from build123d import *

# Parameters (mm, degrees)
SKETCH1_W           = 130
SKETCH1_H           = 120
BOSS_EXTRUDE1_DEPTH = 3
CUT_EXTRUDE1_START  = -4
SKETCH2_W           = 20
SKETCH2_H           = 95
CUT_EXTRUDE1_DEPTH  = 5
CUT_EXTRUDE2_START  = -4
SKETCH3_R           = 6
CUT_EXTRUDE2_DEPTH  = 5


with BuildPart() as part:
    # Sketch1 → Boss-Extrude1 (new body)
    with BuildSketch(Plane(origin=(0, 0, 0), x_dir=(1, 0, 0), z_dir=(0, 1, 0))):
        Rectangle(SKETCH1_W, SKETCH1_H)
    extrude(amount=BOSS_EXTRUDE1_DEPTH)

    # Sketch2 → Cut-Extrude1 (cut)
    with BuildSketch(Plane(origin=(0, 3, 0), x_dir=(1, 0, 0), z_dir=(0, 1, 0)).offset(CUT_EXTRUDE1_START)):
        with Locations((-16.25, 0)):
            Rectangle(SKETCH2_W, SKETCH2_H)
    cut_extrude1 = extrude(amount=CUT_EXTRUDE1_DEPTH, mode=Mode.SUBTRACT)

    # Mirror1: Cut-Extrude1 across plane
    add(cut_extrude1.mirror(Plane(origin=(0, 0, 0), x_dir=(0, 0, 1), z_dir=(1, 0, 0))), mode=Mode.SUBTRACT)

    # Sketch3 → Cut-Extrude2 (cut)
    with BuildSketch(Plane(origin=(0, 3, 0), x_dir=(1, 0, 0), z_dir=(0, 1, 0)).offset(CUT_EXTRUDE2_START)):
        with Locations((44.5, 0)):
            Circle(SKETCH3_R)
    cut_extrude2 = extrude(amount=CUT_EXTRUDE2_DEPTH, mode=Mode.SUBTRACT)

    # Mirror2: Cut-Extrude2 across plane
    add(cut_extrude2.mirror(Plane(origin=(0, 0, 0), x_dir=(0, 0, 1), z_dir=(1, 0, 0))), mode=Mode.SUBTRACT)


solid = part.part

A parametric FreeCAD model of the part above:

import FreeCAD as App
import Part
import Sketcher
Q = App.Units.Quantity

doc = App.newDocument("Part")
body = doc.addObject("PartDesign::Body", "Body")

sketch1 = body.newObject("Sketcher::SketchObject", "Sketch")
sketch1.AttachmentSupport = (doc.getObject("XZ_Plane"), [""])
sketch1.MapMode = "FlatFace"
sketch1.addGeometry([
    Part.LineSegment(App.Vector(-65, -60, 0), App.Vector(-65, 60, 0)),
    Part.LineSegment(App.Vector(-65, 60, 0), App.Vector(65, 60, 0)),
    Part.LineSegment(App.Vector(65, 60, 0), App.Vector(65, -60, 0)),
    Part.LineSegment(App.Vector(65, -60, 0), App.Vector(-65, -60, 0)),
], False)
sketch1.addConstraint([
    Sketcher.Constraint("Coincident", 0, 2, 1, 1),
    Sketcher.Constraint("Coincident", 1, 2, 2, 1),
    Sketcher.Constraint("Coincident", 2, 2, 3, 1),
    Sketcher.Constraint("Coincident", 3, 2, 0, 1),
    Sketcher.Constraint("Vertical", 0),
    Sketcher.Constraint("Horizontal", 1),
    Sketcher.Constraint("Vertical", 2),
    Sketcher.Constraint("Horizontal", 3),
    Sketcher.Constraint("Symmetric", 0, 2, 2, 2, -1, 1),
    Sketcher.Constraint("DistanceX", 1, 1, 1, 2, Q("130 mm")),
    Sketcher.Constraint("DistanceY", 0, 1, 0, 2, Q("120 mm")),
])
pad1 = body.newObject("PartDesign::Pad", "Pad")
pad1.Profile = sketch1
pad1.Length = 3
pad1.Reversed = True

sketch2 = body.newObject("Sketcher::SketchObject", "Sketch001")
sketch2.AttachmentSupport = (doc.getObject("XZ_Plane"), [""])
sketch2.MapMode = "FlatFace"
sketch2.AttachmentOffset = App.Placement(App.Vector(0, 0, 1), App.Rotation())
sketch2.addGeometry([
    Part.LineSegment(App.Vector(-26, -48, 0), App.Vector(-26, 48, 0)),
    Part.LineSegment(App.Vector(-26, 48, 0), App.Vector(-6, 48, 0)),
    Part.LineSegment(App.Vector(-6, 48, 0), App.Vector(-6, -48, 0)),
    Part.LineSegment(App.Vector(-6, -48, 0), App.Vector(-26, -48, 0)),
], False)
sketch2.addConstraint([
    Sketcher.Constraint("Coincident", 0, 2, 1, 1),
    Sketcher.Constraint("Coincident", 1, 2, 2, 1),
    Sketcher.Constraint("Coincident", 2, 2, 3, 1),
    Sketcher.Constraint("Coincident", 3, 2, 0, 1),
    Sketcher.Constraint("Vertical", 0),
    Sketcher.Constraint("Horizontal", 1),
    Sketcher.Constraint("Vertical", 2),
    Sketcher.Constraint("Horizontal", 3),
    Sketcher.Constraint("DistanceX", 1, 1, 1, 2, Q("20 mm")),
    Sketcher.Constraint("DistanceY", 0, 1, 0, 2, Q("95 mm")),
    Sketcher.Constraint("DistanceY", -1, 1, 0, 2, Q("47.5 mm")),
    Sketcher.Constraint("DistanceX", 0, 2, -1, 1, Q("26.25 mm")),
])
pocket1 = body.newObject("PartDesign::Pocket", "Pocket")
pocket1.Profile = sketch2
pocket1.Length = 5
doc.recompute()

mirrored = body.newObject("PartDesign::Mirrored", "Mirrored")
mirrored.Originals = [pocket1]
mirrored.MirrorPlane = (doc.getObject("YZ_Plane"), [""])
body.Tip = mirrored

sketch3 = body.newObject("Sketcher::SketchObject", "Sketch002")
sketch3.AttachmentSupport = (doc.getObject("XZ_Plane"), [""])
sketch3.MapMode = "FlatFace"
sketch3.AttachmentOffset = App.Placement(App.Vector(0, 0, 1), App.Rotation())
sketch3.addGeometry(Part.Circle(App.Vector(44, 0, 0), App.Vector(0, 0, 1), 6), False)
sketch3.addConstraint([
    Sketcher.Constraint("PointOnObject", 0, 3, -1),
    Sketcher.Constraint("Diameter", 0, Q("12 mm")),
    Sketcher.Constraint("DistanceX", -1, 1, 0, 3, Q("44.5 mm")),
])
pocket2 = body.newObject("PartDesign::Pocket", "Pocket001")
pocket2.Profile = sketch3
pocket2.Length = 5
doc.recompute()

mirrored2 = body.newObject("PartDesign::Mirrored", "Mirrored001")
mirrored2.Originals = [pocket2]
mirrored2.MirrorPlane = (doc.getObject("YZ_Plane"), [""])
body.Tip = mirrored2

doc.recompute()
